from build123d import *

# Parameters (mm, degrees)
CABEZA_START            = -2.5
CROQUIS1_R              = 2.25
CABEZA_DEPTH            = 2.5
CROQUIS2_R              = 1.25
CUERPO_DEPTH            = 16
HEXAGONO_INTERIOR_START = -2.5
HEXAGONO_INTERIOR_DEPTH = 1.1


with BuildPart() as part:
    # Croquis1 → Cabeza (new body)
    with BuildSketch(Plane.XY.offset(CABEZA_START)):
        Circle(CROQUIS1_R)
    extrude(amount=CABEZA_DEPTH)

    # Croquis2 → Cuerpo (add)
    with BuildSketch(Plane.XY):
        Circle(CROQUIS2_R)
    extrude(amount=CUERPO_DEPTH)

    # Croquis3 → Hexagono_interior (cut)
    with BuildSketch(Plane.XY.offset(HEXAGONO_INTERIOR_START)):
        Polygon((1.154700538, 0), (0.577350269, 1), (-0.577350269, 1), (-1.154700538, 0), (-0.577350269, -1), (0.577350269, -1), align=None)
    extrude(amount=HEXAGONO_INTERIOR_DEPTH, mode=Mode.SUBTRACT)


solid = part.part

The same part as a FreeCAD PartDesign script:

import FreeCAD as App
import Part
import Sketcher
Q = App.Units.Quantity

doc = App.newDocument("Part")
body = doc.addObject("PartDesign::Body", "Body")

# Sketch on XY plane
sketch1 = doc.addObject("Sketcher::SketchObject", "Sketch")
body.addObject(sketch1)
sketch1.AttachmentSupport = (doc.XY_Plane, [""])
sketch1.MapMode = "FlatFace"
sketch1.AttachmentOffset = App.Placement(App.Vector(0, 0, -2.5), App.Rotation())
sketch1.addGeometry(Part.Circle(App.Vector(0, 0, 0), App.Vector(0, 0, 1), 2.25), False)
sketch1.addConstraint(Sketcher.Constraint("Coincident", 0, 3, -1, 1))
sketch1.addConstraint(Sketcher.Constraint("Diameter", 0, 4.5))
pad1 = doc.addObject("PartDesign::Pad", "Pad")
body.addObject(pad1)
pad1.Profile = sketch1
pad1.Length = 2.5

# Sketch on XY plane
sketch2 = doc.addObject("Sketcher::SketchObject", "Sketch001")
body.addObject(sketch2)
sketch2.AttachmentSupport = (doc.XY_Plane, [""])
sketch2.MapMode = "FlatFace"
sketch2.addGeometry(Part.Circle(App.Vector(0, 0, 0), App.Vector(0, 0, 1), 1.25), False)
sketch2.addConstraint(Sketcher.Constraint("Coincident", 0, 3, -1, 1))
sketch2.addConstraint(Sketcher.Constraint("Diameter", 0, 2.5))
pad2 = doc.addObject("PartDesign::Pad", "Pad001")
body.addObject(pad2)
pad2.Profile = sketch2
pad2.Length = 16

# Sketch on XY plane
sketch3 = doc.addObject("Sketcher::SketchObject", "Sketch002")
body.addObject(sketch3)
sketch3.AttachmentSupport = (doc.XY_Plane, [""])
sketch3.MapMode = "FlatFace"
sketch3.AttachmentOffset = App.Placement(App.Vector(0, 0, -2.5), App.Rotation())
sketch3.addGeometry(Part.LineSegment(App.Vector(1.154701, 0, 0), App.Vector(0.57735, 1, 0)), False)
sketch3.addGeometry(Part.LineSegment(App.Vector(0.57735, 1, 0), App.Vector(-0.57735, 1, 0)), False)
sketch3.addGeometry(Part.LineSegment(App.Vector(-0.57735, 1, 0), App.Vector(-1.154701, 0, 0)), False)
sketch3.addGeometry(Part.LineSegment(App.Vector(-1.154701, 0, 0), App.Vector(-0.57735, -1, 0)), False)
sketch3.addGeometry(Part.LineSegment(App.Vector(-0.57735, -1, 0), App.Vector(0.57735, -1, 0)), False)
sketch3.addGeometry(Part.LineSegment(App.Vector(0.57735, -1, 0), App.Vector(1.154701, 0, 0)), False)
sketch3.addConstraint(Sketcher.Constraint("Coincident", 0, 2, 1, 1))
sketch3.addConstraint(Sketcher.Constraint("Coincident", 1, 2, 2, 1))
sketch3.addConstraint(Sketcher.Constraint("Coincident", 2, 2, 3, 1))
sketch3.addConstraint(Sketcher.Constraint("Coincident", 3, 2, 4, 1))
sketch3.addConstraint(Sketcher.Constraint("Coincident", 4, 2, 5, 1))
sketch3.addConstraint(Sketcher.Constraint("Coincident", 5, 2, 0, 1))
sketch3.addConstraint(Sketcher.Constraint("Horizontal", 1))
sketch3.addConstraint(Sketcher.Constraint("Horizontal", 4))
sketch3.addConstraint(Sketcher.Constraint("Symmetric", 0, 2, 3, 2, -1, 1))
sketch3.addConstraint(Sketcher.Constraint("Symmetric", 2, 2, 5, 2, -1, 1))
sketch3.addConstraint(Sketcher.Constraint("PointOnObject", 2, 2, -1))
sketch3.addConstraint(Sketcher.Constraint("Parallel", 2, 5))
sketch3.addConstraint(Sketcher.Constraint("Vertical", 1, 2, 3, 2))
sketch3.addConstraint(Sketcher.Constraint("Angle", 0, Q("120 deg")))
sketch3.addConstraint(Sketcher.Constraint("DistanceY", -1, 1, 0, 2, 1.0))
sketch3.addConstraint(Sketcher.Constraint("DistanceX", 1, 2, 1, 1, 1.154701))
pocket1 = doc.addObject("PartDesign::Pocket", "Pocket")
body.addObject(pocket1)
pocket1.Profile = sketch3
pocket1.Length = 1.1
pocket1.Reversed = True

doc.recompute()
